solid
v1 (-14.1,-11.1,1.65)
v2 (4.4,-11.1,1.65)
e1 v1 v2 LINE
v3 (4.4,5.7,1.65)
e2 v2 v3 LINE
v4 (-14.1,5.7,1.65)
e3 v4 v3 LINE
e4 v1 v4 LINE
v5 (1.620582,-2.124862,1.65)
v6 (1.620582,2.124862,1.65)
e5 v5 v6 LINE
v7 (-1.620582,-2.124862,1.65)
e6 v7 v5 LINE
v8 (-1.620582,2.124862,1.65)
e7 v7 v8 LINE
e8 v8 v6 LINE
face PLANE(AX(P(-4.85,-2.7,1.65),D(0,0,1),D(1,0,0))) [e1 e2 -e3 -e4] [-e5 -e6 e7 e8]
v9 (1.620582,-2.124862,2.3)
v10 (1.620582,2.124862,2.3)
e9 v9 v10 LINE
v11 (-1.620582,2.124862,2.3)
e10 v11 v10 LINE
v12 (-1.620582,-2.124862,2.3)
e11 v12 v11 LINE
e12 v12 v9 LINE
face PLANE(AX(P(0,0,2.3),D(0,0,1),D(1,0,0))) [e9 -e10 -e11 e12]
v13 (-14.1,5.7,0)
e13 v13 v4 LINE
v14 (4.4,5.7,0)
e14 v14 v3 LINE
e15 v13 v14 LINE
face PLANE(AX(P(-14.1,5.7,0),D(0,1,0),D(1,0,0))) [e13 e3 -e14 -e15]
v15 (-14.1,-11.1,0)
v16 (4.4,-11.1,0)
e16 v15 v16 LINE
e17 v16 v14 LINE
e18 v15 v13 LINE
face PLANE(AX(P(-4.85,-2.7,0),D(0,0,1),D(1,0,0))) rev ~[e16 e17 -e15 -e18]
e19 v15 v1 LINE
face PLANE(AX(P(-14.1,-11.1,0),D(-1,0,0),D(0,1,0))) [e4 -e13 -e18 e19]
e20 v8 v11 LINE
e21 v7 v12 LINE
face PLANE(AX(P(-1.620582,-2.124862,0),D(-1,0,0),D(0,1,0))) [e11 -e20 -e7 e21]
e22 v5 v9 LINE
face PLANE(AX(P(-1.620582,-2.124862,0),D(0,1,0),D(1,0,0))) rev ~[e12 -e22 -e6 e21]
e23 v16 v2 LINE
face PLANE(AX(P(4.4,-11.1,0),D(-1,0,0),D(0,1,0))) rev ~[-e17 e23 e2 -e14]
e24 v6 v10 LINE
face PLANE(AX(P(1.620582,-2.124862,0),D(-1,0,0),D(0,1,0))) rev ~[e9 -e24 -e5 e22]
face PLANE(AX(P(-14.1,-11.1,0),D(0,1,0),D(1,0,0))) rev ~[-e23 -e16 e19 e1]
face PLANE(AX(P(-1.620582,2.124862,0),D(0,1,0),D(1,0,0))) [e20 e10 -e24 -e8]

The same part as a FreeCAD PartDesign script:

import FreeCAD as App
import Part
import Sketcher
Q = App.Units.Quantity

doc = App.newDocument("Part")
params = doc.addObject("Spreadsheet::Sheet", "Params")
for row, (alias, value) in enumerate([
    ("pad1_length", "2.3 mm"),
    ("sketch2_width", "18.5 mm"),
    ("sketch2_height", "16.8 mm"),
    ("pad2_length", "1.65 mm"),
], start=1):
    params.set(f"A{row}", alias)
    params.set(f"B{row}", "=" + value)
    params.setAlias(f"B{row}", alias)

body = doc.addObject("PartDesign::Body", "Body")

# Sketch on XY plane
sketch1 = body.newObject("Sketcher::SketchObject", "Sketch")
sketch1.AttachmentSupport = (doc.getObject("XY_Plane"), [""])
sketch1.MapMode = "FlatFace"
sketch1.addGeometry([
    Part.LineSegment(App.Vector(-1.6, 2.1, 0), App.Vector(-1.6, -2.1, 0)),
    Part.LineSegment(App.Vector(-1.6, -2.1, 0), App.Vector(1.6, -2.1, 0)),
    Part.LineSegment(App.Vector(1.6, -2.1, 0), App.Vector(1.6, 2.1, 0)),
    Part.LineSegment(App.Vector(1.6, 2.1, 0), App.Vector(-1.6, 2.1, 0)),
], False)
sketch1.addConstraint([
    Sketcher.Constraint("Coincident", 0, 2, 1, 1),
    Sketcher.Constraint("Coincident", 1, 2, 2, 1),
    Sketcher.Constraint("Coincident", 2, 2, 3, 1),
    Sketcher.Constraint("Coincident", 3, 2, 0, 1),
    Sketcher.Constraint("Vertical", 0),
    Sketcher.Constraint("Horizontal", 1),
    Sketcher.Constraint("Vertical", 2),
    Sketcher.Constraint("Horizontal", 3),
    Sketcher.Constraint("Symmetric", 0, 2, 2, 2, -1, 1),
    Sketcher.Constraint("DistanceX", 1, 1, 1, 2, Q("3.241164 mm")),
    Sketcher.Constraint("DistanceY", 0, 2, 0, 1, Q("4.249724 mm")),
])
pad1 = body.newObject("PartDesign::Pad", "Pad")
pad1.Profile = sketch1
pad1.setExpression("Length", "Params.pad1_length")

# Sketch on XY plane
sketch2 = body.newObject("Sketcher::SketchObject", "Sketch001")
sketch2.AttachmentSupport = (doc.getObject("XY_Plane"), [""])
sketch2.MapMode = "FlatFace"
sketch2.addGeometry([
    Part.LineSegment(App.Vector(-14.1, 5.7, 0), App.Vector(-14.1, -11.1, 0)),  # 0
    Part.LineSegment(App.Vector(-14.1, -11.1, 0), App.Vector(4.4, -11.1, 0)),  # 1
    Part.LineSegment(App.Vector(4.4, -11.1, 0), App.Vector(4.4, 5.7, 0)),  # 2
    Part.LineSegment(App.Vector(4.4, 5.7, 0), App.Vector(-14.1, 5.7, 0)),  # 3
    Part.LineSegment(App.Vector(1.6, -2.1, 0), App.Vector(-1.6, -2.1, 0)),  # 4
    Part.LineSegment(App.Vector(-1.6, -2.1, 0), App.Vector(-1.6, 2.1, 0)),  # 5
    Part.LineSegment(App.Vector(-1.6, 2.1, 0), App.Vector(1.6, 2.1, 0)),  # 6
    Part.LineSegment(App.Vector(1.6, 2.1, 0), App.Vector(1.6, -2.1, 0)),  # 7
], False)
sketch2.addConstraint([
    Sketcher.Constraint("Coincident", 0, 2, 1, 1),
    Sketcher.Constraint("Coincident", 1, 2, 2, 1),
    Sketcher.Constraint("Coincident", 2, 2, 3, 1),
    Sketcher.Constraint("Coincident", 3, 2, 0, 1),
    Sketcher.Constraint("Coincident", 4, 2, 5, 1),
    Sketcher.Constraint("Coincident", 5, 2, 6, 1),
    Sketcher.Constraint("Coincident", 6, 2, 7, 1),
    Sketcher.Constraint("Coincident", 7, 2, 4, 1),
    Sketcher.Constraint("Vertical", 0),
    Sketcher.Constraint("Horizontal", 1),
    Sketcher.Constraint("Vertical", 2),
    Sketcher.Constraint("Horizontal", 3),
    Sketcher.Constraint("Horizontal", 4),
    Sketcher.Constraint("Vertical", 5),
    Sketcher.Constraint("Horizontal", 6),
    Sketcher.Constraint("Vertical", 7),
    Sketcher.Constraint("Symmetric", 4, 2, 6, 2, -1, 1),
    Sketcher.Constraint("DistanceX", 1, 1, 1, 2, Q("18.5 mm")),
    Sketcher.Constraint("DistanceY", 0, 2, 0, 1, Q("16.8 mm")),
    Sketcher.Constraint("DistanceX", 0, 2, -1, 1, Q("14.1 mm")),
    Sketcher.Constraint("DistanceY", 0, 2, -1, 1, Q("11.1 mm")),
    Sketcher.Constraint("DistanceX", 4, 2, 4, 1, Q("3.241164 mm")),
    Sketcher.Constraint("DistanceY", 5, 1, 5, 2, Q("4.249724 mm")),
])
sketch2.setExpression("Constraints[17]", "Params.sketch2_width")
sketch2.setExpression("Constraints[18]", "Params.sketch2_height")
pad2 = body.newObject("PartDesign::Pad", "Pad001")
pad2.Profile = sketch2
pad2.setExpression("Length", "Params.pad2_length")

doc.recompute()
